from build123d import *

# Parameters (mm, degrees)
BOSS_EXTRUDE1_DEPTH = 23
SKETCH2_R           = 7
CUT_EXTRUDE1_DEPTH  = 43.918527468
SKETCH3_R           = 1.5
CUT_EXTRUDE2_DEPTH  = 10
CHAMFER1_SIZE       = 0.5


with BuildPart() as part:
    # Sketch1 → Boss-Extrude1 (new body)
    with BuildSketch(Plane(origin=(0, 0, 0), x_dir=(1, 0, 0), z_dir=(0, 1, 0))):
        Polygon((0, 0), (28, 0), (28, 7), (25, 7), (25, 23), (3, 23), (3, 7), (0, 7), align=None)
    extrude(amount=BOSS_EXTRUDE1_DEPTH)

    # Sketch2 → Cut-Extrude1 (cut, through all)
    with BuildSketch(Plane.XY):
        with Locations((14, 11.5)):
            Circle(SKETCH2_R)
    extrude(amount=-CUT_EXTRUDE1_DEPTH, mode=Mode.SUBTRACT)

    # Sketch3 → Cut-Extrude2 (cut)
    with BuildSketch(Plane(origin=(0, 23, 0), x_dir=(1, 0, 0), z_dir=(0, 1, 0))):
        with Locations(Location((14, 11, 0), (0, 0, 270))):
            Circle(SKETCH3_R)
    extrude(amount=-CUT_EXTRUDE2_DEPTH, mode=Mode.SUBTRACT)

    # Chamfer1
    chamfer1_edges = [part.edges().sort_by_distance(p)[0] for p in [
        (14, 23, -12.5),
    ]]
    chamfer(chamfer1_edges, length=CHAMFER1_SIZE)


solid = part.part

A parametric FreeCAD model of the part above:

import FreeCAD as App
import Part
import Sketcher

V = App.Vector
Q = App.Units.Quantity


def edges_at(feature, points):
    """Names of the edges that pass closest to the given points."""
    edges = feature.Shape.Edges
    near = lambda p: min(range(len(edges)), key=lambda i: edges[i].distToShape(Part.Vertex(*p))[0])
    return sorted({f"Edge{near(p) + 1}" for p in points})


def add_polygon(sketch, points):
    """Adds a closed chain of lines whose ends are joined by coincident constraints."""
    first, n = sketch.GeometryCount, len(points)
    for a, b in zip(points, points[1:] + points[:1]):
        sketch.addGeometry(Part.LineSegment(App.Vector(*a, 0), App.Vector(*b, 0)), False)
    for i in range(n):
        sketch.addConstraint(Sketcher.Constraint("Coincident", first + i, 2, first + (i + 1) % n, 1))

doc = App.newDocument("Part")
body = doc.addObject("PartDesign::Body", "Body")

# Sketch on XZ plane
sketch1 = body.newObject("Sketcher::SketchObject", "Sketch")
sketch1.AttachmentSupport = (doc.getObject("XZ_Plane"), [""])
sketch1.MapMode = "FlatFace"
add_polygon(sketch1, [(0, 0), (28, 0), (28, -7), (25, -7), (25, -23), (3, -23), (3, -7), (0, -7)])  # lines 0-7
sketch1.addConstraint(Sketcher.Constraint("Horizontal", 0))
sketch1.addConstraint(Sketcher.Constraint("Vertical", 1))
sketch1.addConstraint(Sketcher.Constraint("Horizontal", 2))
sketch1.addConstraint(Sketcher.Constraint("Vertical", 3))
sketch1.addConstraint(Sketcher.Constraint("Horizontal", 4))
sketch1.addConstraint(Sketcher.Constraint("Vertical", 5))
sketch1.addConstraint(Sketcher.Constraint("Horizontal", 6))
sketch1.addConstraint(Sketcher.Constraint("Vertical", 7))
sketch1.addConstraint(Sketcher.Constraint("Coincident", 7, 2, -1, 1))
sketch1.addConstraint(Sketcher.Constraint("Horizontal", 2, 2, 5, 2))
sketch1.addConstraint(Sketcher.Constraint("Equal", 2, 6))
sketch1.addConstraint(Sketcher.Constraint("DistanceX", 0, 1, 0, 2, Q("28 mm")))
sketch1.addConstraint(Sketcher.Constraint("DistanceX", 2, 2, 2, 1, Q("3 mm")))
sketch1.addConstraint(Sketcher.Constraint("DistanceY", 1, 2, 1, 1, Q("7 mm")))
sketch1.addConstraint(Sketcher.Constraint("DistanceY", 3, 2, 3, 1, Q("16 mm")))
pad1 = body.newObject("PartDesign::Pad", "Pad")
pad1.Profile = sketch1
pad1.Length = 23
pad1.Reversed = True

# Sketch on XY plane
sketch2 = body.newObject("Sketcher::SketchObject", "Sketch001")
sketch2.AttachmentSupport = (doc.getObject("XY_Plane"), [""])
sketch2.MapMode = "FlatFace"
sketch2.addGeometry(Part.Circle(V(14, 11.5, 0), V(0, 0, 1), 7), False)
sketch2.addConstraint(Sketcher.Constraint("Diameter", 0, Q("14 mm")))
sketch2.addConstraint(Sketcher.Constraint("DistanceX", -1, 1, 0, 3, Q("14 mm")))
sketch2.addConstraint(Sketcher.Constraint("DistanceY", -1, 1, 0, 3, Q("11.5 mm")))
pocket1 = body.newObject("PartDesign::Pocket", "Pocket")
pocket1.Profile = sketch2
pocket1.Type = "ThroughAll"

# Sketch on XZ plane
sketch3 = body.newObject("Sketcher::SketchObject", "Sketch002")
sketch3.AttachmentSupport = (doc.getObject("XZ_Plane"), [""])
sketch3.MapMode = "FlatFace"
sketch3.AttachmentOffset = App.Placement(V(0, 0, -23), App.Rotation())
sketch3.addGeometry(Part.Circle(V(14, -11, 0), V(0, 0, 1), 1.5), False)
sketch3.addConstraint(Sketcher.Constraint("Diameter", 0, Q("3 mm")))
sketch3.addConstraint(Sketcher.Constraint("DistanceX", -1, 1, 0, 3, Q("14 mm")))
sketch3.addConstraint(Sketcher.Constraint("DistanceY", 0, 3, -1, 1, Q("11 mm")))
pocket2 = body.newObject("PartDesign::Pocket", "Pocket001")
pocket2.Profile = sketch3
pocket2.Length = 10
pocket2.Reversed = True
doc.recompute()

chamfer = body.newObject("PartDesign::Chamfer", "Chamfer")
chamfer.Base = (pocket2, edges_at(pocket2, [(14, 23, -12.5)]))
chamfer.Size = 0.5

doc.recompute()
